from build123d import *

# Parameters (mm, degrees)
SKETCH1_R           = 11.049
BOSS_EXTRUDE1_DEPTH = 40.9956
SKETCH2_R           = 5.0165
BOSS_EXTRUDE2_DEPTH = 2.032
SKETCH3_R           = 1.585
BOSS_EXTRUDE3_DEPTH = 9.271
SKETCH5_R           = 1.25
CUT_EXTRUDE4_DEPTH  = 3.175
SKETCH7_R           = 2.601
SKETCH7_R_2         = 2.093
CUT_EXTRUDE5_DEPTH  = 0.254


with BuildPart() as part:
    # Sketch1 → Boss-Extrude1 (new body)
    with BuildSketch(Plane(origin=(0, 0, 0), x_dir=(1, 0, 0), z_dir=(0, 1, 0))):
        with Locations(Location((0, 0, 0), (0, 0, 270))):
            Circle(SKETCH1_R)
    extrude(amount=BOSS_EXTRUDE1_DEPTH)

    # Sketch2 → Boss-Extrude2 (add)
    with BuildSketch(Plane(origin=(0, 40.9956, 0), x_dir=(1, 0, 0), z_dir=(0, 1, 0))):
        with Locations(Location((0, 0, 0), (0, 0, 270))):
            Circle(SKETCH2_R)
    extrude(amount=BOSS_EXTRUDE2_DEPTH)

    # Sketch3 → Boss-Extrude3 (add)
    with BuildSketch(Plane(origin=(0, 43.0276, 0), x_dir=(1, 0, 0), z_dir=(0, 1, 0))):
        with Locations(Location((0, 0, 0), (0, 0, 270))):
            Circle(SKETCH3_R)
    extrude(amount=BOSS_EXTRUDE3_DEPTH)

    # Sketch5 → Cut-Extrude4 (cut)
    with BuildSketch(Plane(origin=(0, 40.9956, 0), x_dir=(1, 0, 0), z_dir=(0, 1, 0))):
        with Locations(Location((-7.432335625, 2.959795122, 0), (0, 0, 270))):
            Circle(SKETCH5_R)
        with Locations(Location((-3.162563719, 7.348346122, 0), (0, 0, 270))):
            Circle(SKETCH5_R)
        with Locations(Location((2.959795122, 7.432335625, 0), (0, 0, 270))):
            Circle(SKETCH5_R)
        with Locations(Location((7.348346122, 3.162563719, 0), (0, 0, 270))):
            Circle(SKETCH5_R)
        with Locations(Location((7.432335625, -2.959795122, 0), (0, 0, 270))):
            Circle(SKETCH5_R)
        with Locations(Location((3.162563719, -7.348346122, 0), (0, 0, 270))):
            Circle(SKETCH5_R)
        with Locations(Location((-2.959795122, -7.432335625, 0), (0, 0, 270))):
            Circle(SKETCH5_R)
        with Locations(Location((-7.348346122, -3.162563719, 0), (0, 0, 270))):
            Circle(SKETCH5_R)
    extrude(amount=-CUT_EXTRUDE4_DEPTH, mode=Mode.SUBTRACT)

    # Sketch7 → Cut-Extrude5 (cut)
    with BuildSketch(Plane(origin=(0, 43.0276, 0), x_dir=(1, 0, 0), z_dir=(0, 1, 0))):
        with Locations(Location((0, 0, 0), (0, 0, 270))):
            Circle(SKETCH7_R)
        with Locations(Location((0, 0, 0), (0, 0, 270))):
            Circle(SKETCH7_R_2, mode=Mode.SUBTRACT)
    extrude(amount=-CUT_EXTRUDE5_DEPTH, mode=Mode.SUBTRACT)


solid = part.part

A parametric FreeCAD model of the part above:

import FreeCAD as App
import Part
import Sketcher
from FreeCAD import Vector
Q = App.Units.Quantity

doc = App.newDocument("Part")
body = doc.addObject("PartDesign::Body", "Body")

# Sketch on XZ plane
sketch1 = body.newObject("Sketcher::SketchObject", "Sketch")
sketch1.AttachmentSupport = (doc.getObject("XZ_Plane"), [""])
sketch1.MapMode = "FlatFace"
sketch1.addGeometry(Part.Circle(Vector(0, 0, 0), Vector(0, 0, 1), 11), False)
sketch1.addConstraint([
    Sketcher.Constraint("Coincident", 0, 3, -1, 1),
    Sketcher.Constraint("Diameter", 0, Q("0.87 in")),
])
pad1 = body.newObject("PartDesign::Pad", "Pad")
pad1.Profile = sketch1
pad1.Length = Q("1.614 in")
pad1.Reversed = True

# Sketch on XZ plane
sketch2 = body.newObject("Sketcher::SketchObject", "Sketch001")
sketch2.AttachmentSupport = (doc.getObject("XZ_Plane"), [""])
sketch2.MapMode = "FlatFace"
sketch2.AttachmentOffset = App.Placement(Vector(0, 0, -1.614 * 25.4), App.Rotation())
sketch2.addGeometry(Part.Circle(Vector(0, 0, 0), Vector(0, 0, 1), 5), False)
sketch2.addConstraint([
    Sketcher.Constraint("Coincident", 0, 3, -1, 1),
    Sketcher.Constraint("Diameter", 0, Q("0.395 in")),
])
pad2 = body.newObject("PartDesign::Pad", "Pad001")
pad2.Profile = sketch2
pad2.Length = Q("0.08 in")
pad2.Reversed = True

# Sketch on XZ plane
sketch3 = body.newObject("Sketcher::SketchObject", "Sketch002")
sketch3.AttachmentSupport = (doc.getObject("XZ_Plane"), [""])
sketch3.MapMode = "FlatFace"
sketch3.AttachmentOffset = App.Placement(Vector(0, 0, -1.694 * 25.4), App.Rotation())
sketch3.addGeometry(Part.Circle(Vector(0, 0, 0), Vector(0, 0, 1), 1.6), False)
sketch3.addConstraint([
    Sketcher.Constraint("Coincident", 0, 3, -1, 1),
    Sketcher.Constraint("Diameter", 0, 3.17),
])
pad3 = body.newObject("PartDesign::Pad", "Pad002")
pad3.Profile = sketch3
pad3.Length = Q("0.365 in")
pad3.Reversed = True

# Sketch on XZ plane
sketch4 = body.newObject("Sketcher::SketchObject", "Sketch003")
sketch4.AttachmentSupport = (doc.getObject("XZ_Plane"), [""])
sketch4.MapMode = "FlatFace"
sketch4.AttachmentOffset = App.Placement(Vector(0, 0, -1.614 * 25.4), App.Rotation())
sketch4.addGeometry([
    Part.Circle(Vector(-7.4, -3, 0), Vector(0, 0, 1), 1.2),  # 0
    Part.Circle(Vector(-3.2, -7.3, 0), Vector(0, 0, 1), 1.2),  # 1
    Part.Circle(Vector(3, -7.4, 0), Vector(0, 0, 1), 1.2),  # 2
    Part.Circle(Vector(7.3, -3.2, 0), Vector(0, 0, 1), 1.2),  # 3
    Part.Circle(Vector(7.4, 3, 0), Vector(0, 0, 1), 1.2),  # 4
    Part.Circle(Vector(3.2, 7.3, 0), Vector(0, 0, 1), 1.2),  # 5
    Part.Circle(Vector(-3, 7.4, 0), Vector(0, 0, 1), 1.2),  # 6
    Part.Circle(Vector(-7.3, 3.2, 0), Vector(0, 0, 1), 1.2),  # 7
], False)
sketch4.addConstraint([
    Sketcher.Constraint("Equal", 0, 1),
    Sketcher.Constraint("Equal", 1, 2),
    Sketcher.Constraint("Equal", 2, 3),
    Sketcher.Constraint("Equal", 3, 4),
    Sketcher.Constraint("Equal", 4, 5),
    Sketcher.Constraint("Equal", 5, 6),
    Sketcher.Constraint("Equal", 6, 7),
    Sketcher.Constraint("Symmetric", 0, 3, 4, 3, -1, 1),
    Sketcher.Constraint("Symmetric", 1, 3, 5, 3, -1, 1),
    Sketcher.Constraint("Symmetric", 2, 3, 6, 3, -1, 1),
    Sketcher.Constraint("Symmetric", 3, 3, 7, 3, -1, 1),
    Sketcher.Constraint("Diameter", 0, 2.5),
    Sketcher.Constraint("DistanceX", 1, 3, 4, 3, 10.594899),
    Sketcher.Constraint("DistanceY", 3, 3, 6, 3, 10.594899),
    Sketcher.Constraint("DistanceX", 0, 3, 1, 3, 4.269772),
    Sketcher.Constraint("DistanceY", 1, 3, 0, 3, 4.388551),
    Sketcher.Constraint("DistanceX", 1, 3, 2, 3, 6.122359),
    Sketcher.Constraint("DistanceY", 2, 3, 1, 3, 0.08399),
    Sketcher.Constraint("DistanceX", 2, 3, 3, 3, 4.388551),
    Sketcher.Constraint("DistanceY", 2, 3, 3, 3, 4.269772),
])
pocket1 = body.newObject("PartDesign::Pocket", "Pocket")
pocket1.Profile = sketch4
pocket1.Length = Q("0.125 in")
pocket1.Reversed = True

# Sketch on XZ plane
sketch5 = body.newObject("Sketcher::SketchObject", "Sketch004")
sketch5.AttachmentSupport = (doc.getObject("XZ_Plane"), [""])
sketch5.MapMode = "FlatFace"
sketch5.AttachmentOffset = App.Placement(Vector(0, 0, -1.694 * 25.4), App.Rotation())
sketch5.addGeometry([
    Part.Circle(Vector(0, 0, 0), Vector(0, 0, 1), 2.6),
    Part.Circle(Vector(0, 0, 0), Vector(0, 0, 1), 2.1),
], False)
sketch5.addConstraint([
    Sketcher.Constraint("Coincident", 0, 3, -1, 1),
    Sketcher.Constraint("Coincident", 1, 3, -1, 1),
    Sketcher.Constraint("Diameter", 0, 5.202),
    Sketcher.Constraint("Diameter", 1, 4.186),
])
pocket2 = body.newObject("PartDesign::Pocket", "Pocket001")
pocket2.Profile = sketch5
pocket2.Length = Q("0.01 in")
pocket2.Reversed = True

doc.recompute()
